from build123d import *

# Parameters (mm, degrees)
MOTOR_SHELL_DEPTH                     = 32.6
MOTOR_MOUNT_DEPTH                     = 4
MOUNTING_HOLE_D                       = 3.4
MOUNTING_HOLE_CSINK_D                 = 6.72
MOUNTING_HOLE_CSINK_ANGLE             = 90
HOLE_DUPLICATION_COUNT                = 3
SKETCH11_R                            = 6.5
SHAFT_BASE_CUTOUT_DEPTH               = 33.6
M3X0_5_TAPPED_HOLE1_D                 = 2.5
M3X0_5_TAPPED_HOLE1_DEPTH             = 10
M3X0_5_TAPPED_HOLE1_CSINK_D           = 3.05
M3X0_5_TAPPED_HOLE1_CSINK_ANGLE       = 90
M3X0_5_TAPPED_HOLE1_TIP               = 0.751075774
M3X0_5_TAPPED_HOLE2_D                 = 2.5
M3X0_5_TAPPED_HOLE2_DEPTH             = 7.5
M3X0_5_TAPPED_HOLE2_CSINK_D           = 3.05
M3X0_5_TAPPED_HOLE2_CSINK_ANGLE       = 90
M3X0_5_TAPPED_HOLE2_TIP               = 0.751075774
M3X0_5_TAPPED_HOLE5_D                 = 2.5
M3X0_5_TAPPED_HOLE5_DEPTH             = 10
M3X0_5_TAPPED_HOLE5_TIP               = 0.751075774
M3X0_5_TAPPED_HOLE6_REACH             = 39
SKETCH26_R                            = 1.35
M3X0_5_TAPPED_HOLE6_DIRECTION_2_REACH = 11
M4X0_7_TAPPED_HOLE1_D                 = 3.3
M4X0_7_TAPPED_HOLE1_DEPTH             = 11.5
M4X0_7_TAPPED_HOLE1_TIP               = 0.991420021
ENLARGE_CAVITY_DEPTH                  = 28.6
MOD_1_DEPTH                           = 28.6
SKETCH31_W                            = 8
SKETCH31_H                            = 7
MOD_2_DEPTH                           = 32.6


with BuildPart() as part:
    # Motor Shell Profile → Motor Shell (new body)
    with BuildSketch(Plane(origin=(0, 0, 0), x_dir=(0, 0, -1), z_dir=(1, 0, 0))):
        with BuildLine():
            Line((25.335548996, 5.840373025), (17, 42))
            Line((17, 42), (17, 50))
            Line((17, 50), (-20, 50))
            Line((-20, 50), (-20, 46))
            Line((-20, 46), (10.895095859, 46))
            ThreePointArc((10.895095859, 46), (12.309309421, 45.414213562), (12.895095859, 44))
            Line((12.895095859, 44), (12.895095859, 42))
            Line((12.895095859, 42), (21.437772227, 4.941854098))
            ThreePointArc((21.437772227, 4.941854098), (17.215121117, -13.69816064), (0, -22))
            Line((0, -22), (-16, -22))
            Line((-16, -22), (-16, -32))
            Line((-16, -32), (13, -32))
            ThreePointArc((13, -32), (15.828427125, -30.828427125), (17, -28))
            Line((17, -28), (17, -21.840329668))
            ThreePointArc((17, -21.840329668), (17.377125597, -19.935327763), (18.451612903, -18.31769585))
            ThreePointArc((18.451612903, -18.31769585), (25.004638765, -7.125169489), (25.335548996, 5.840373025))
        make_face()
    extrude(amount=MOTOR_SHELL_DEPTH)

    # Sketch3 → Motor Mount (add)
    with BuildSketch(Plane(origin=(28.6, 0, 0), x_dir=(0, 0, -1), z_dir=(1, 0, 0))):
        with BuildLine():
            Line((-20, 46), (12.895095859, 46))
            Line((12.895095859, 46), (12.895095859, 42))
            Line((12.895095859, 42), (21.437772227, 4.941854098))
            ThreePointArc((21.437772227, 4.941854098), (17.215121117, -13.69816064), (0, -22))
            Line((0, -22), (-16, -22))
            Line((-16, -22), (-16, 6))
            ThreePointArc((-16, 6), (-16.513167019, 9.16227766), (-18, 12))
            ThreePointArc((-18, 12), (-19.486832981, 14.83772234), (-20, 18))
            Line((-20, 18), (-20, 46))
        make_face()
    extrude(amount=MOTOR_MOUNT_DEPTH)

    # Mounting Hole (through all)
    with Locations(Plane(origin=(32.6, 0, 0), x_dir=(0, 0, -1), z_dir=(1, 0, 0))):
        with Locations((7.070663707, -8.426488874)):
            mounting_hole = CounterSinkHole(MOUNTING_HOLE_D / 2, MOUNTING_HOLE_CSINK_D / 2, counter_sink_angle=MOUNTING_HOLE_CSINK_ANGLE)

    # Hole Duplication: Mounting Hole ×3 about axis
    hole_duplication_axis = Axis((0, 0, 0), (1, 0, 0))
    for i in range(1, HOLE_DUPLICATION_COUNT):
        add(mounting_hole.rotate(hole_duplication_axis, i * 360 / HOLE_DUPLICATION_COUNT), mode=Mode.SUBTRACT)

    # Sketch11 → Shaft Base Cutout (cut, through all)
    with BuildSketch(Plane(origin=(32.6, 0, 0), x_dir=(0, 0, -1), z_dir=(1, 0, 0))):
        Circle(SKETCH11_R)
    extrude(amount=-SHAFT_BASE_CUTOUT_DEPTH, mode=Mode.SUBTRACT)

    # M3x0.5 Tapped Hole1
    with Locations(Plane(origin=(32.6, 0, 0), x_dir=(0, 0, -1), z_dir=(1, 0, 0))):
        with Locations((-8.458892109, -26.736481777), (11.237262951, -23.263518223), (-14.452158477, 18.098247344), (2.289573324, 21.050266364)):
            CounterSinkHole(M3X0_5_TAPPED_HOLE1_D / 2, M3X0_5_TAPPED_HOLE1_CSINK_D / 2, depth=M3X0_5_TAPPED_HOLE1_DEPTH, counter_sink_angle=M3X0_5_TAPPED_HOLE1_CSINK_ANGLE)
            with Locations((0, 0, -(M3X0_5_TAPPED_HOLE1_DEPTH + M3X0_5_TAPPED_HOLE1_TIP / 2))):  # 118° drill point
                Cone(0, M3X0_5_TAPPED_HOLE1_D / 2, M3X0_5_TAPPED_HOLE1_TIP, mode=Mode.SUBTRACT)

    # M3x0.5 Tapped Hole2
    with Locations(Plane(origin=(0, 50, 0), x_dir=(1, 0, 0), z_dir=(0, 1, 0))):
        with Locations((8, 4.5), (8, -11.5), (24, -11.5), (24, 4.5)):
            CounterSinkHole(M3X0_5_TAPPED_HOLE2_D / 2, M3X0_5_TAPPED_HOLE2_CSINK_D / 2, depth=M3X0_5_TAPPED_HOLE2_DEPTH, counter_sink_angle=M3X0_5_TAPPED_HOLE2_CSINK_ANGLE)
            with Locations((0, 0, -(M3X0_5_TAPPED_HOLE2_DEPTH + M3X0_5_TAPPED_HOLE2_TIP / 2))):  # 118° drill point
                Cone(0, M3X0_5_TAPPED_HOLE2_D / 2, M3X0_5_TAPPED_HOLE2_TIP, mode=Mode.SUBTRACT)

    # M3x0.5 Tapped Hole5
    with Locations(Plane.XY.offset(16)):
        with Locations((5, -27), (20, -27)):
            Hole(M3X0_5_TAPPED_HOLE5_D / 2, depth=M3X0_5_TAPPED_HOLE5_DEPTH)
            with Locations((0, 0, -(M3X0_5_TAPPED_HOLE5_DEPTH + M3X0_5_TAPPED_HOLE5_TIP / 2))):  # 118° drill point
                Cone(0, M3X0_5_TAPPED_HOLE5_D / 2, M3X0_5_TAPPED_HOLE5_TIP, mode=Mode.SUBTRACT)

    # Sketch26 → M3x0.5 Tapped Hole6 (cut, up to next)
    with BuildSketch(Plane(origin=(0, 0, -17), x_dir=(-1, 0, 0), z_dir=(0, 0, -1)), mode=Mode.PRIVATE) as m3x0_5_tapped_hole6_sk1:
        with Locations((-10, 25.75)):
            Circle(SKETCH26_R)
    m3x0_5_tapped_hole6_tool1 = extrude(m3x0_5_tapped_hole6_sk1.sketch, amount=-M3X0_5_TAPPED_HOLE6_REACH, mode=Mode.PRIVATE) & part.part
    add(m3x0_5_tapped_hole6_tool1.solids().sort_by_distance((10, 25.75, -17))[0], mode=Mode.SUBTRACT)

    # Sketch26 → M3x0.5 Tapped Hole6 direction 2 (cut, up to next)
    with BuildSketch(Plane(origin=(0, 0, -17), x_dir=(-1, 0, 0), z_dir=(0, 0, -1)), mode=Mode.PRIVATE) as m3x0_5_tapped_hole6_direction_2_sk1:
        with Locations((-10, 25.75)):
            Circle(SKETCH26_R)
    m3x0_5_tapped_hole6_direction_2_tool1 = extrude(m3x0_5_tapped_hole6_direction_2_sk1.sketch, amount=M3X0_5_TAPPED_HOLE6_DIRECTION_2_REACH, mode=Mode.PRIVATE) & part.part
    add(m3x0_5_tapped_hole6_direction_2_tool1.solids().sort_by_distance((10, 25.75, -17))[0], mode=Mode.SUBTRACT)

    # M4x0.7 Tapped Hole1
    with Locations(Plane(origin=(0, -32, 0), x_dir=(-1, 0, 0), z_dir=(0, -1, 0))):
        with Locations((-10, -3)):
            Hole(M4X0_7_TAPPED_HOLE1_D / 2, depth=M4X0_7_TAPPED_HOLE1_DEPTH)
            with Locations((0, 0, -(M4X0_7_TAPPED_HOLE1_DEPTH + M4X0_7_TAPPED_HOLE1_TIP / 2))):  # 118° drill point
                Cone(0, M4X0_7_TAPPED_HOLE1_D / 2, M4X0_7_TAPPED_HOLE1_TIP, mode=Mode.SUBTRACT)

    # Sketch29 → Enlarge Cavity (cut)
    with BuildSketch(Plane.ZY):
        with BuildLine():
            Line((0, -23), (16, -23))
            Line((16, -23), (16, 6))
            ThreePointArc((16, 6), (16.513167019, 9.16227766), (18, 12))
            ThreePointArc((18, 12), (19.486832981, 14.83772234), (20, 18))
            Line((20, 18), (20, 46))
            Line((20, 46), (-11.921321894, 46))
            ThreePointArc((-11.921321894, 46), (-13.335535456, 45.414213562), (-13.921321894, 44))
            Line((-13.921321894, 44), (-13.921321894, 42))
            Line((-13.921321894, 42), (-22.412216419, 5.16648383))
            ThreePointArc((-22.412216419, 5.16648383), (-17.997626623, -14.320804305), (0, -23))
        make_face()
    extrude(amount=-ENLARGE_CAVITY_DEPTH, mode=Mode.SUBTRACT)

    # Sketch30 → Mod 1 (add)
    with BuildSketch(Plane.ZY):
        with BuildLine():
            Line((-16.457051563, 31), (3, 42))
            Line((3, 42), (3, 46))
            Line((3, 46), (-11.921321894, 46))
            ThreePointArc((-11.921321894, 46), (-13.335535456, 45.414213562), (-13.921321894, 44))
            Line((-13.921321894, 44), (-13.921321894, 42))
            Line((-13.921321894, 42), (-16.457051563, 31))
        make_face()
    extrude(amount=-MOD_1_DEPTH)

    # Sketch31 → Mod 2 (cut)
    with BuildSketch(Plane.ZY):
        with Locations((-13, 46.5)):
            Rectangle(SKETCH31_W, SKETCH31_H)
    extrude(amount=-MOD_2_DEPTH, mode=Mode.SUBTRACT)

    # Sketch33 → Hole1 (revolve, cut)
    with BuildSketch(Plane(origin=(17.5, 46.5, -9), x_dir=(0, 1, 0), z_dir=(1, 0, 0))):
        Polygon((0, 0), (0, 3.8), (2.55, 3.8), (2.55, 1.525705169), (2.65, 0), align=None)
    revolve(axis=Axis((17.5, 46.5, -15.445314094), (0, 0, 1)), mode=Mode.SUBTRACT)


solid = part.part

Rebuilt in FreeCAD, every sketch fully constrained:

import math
import FreeCAD as App
import Part
import Sketcher
from FreeCAD import Vector
Q = App.Units.Quantity


def add_polygon(sketch, points):
    """Adds a closed chain of lines whose ends are joined by coincident constraints."""
    first, n = sketch.GeometryCount, len(points)
    for a, b in zip(points, points[1:] + points[:1]):
        sketch.addGeometry(Part.LineSegment(App.Vector(*a, 0), App.Vector(*b, 0)), False)
    for i in range(n):
        sketch.addConstraint(Sketcher.Constraint("Coincident", first + i, 2, first + (i + 1) % n, 1))

doc = App.newDocument("Part")
body = doc.addObject("PartDesign::Body", "Body")

sketch1 = body.newObject("Sketcher::SketchObject", "Sketch")
sketch1.AttachmentSupport = (doc.getObject("YZ_Plane"), [""])
sketch1.MapMode = "FlatFace"
sketch1.addGeometry([
    Part.LineSegment(Vector(5.840373, -25.335549, 0), Vector(42, -17, 0)),
    Part.LineSegment(Vector(42, -17, 0), Vector(50, -17, 0)),
    Part.LineSegment(Vector(50, -17, 0), Vector(50, 20, 0)),
    Part.LineSegment(Vector(50, 20, 0), Vector(46, 20, 0)),
    Part.LineSegment(Vector(46, 20, 0), Vector(46, -10.895096, 0)),
    Part.ArcOfCircle(Part.Circle(Vector(44, -10.895096, 0), Vector(0, 0, 1), 2), math.radians(-90), math.radians(0)),
    Part.LineSegment(Vector(44, -12.895096, 0), Vector(42, -12.895096, 0)),
    Part.LineSegment(Vector(42, -12.895096, 0), Vector(4.941854, -21.437772, 0)),
    Part.ArcOfCircle(Part.Circle(Vector(0, 0, 0), Vector(0, 0, 1), 22), math.radians(180), math.radians(282.981106)),
    Part.LineSegment(Vector(-22, 0, 0), Vector(-22, 16, 0)),
    Part.LineSegment(Vector(-22, 16, 0), Vector(-32, 16, 0)),
    Part.LineSegment(Vector(-32, 16, 0), Vector(-32, -13, 0)),
    Part.ArcOfCircle(Part.Circle(Vector(-28, -13, 0), Vector(0, 0, 1), 4), math.radians(180), math.radians(270)),
    Part.LineSegment(Vector(-28, -17, 0), Vector(-21.84033, -17, 0)),
    Part.ArcOfCircle(Part.Circle(Vector(-21.84033, -22, 0), Vector(0, 0, 1), 5), math.radians(45.208675), math.radians(90)),
    Part.ArcOfCircle(Part.Circle(Vector(0, 0, 0), Vector(0, 0, 1), 26), math.radians(-134.791325), math.radians(-77.018894)),
], False)
sketch1.addConstraint([
    Sketcher.Constraint("Coincident", 0, 2, 1, 1),
    Sketcher.Constraint("Coincident", 1, 2, 2, 1),
    Sketcher.Constraint("Coincident", 2, 2, 3, 1),
    Sketcher.Constraint("Coincident", 3, 2, 4, 1),
    Sketcher.Constraint("Tangent", 4, 2, 5, 2),
    Sketcher.Constraint("Tangent", 5, 1, 6, 1),
    Sketcher.Constraint("Coincident", 6, 2, 7, 1),
    Sketcher.Constraint("Tangent", 7, 2, 8, 2),
    Sketcher.Constraint("Tangent", 8, 1, 9, 1),
    Sketcher.Constraint("Coincident", 9, 2, 10, 1),
    Sketcher.Constraint("Coincident", 10, 2, 11, 1),
    Sketcher.Constraint("Tangent", 11, 2, 12, 1),
    Sketcher.Constraint("Tangent", 12, 2, 13, 1),
    Sketcher.Constraint("Tangent", 13, 2, 14, 2),
    Sketcher.Constraint("Tangent", 14, 1, 15, 1),
    Sketcher.Constraint("Tangent", 15, 2, 0, 1),
    Sketcher.Constraint("Horizontal", 1),
    Sketcher.Constraint("Vertical", 2),
    Sketcher.Constraint("Horizontal", 3),
    Sketcher.Constraint("Vertical", 4),
    Sketcher.Constraint("Horizontal", 6),
    Sketcher.Constraint("Vertical", 9),
    Sketcher.Constraint("Horizontal", 10),
    Sketcher.Constraint("Vertical", 11),
    Sketcher.Constraint("Horizontal", 13),
    Sketcher.Constraint("Coincident", 8, 3, -1, 1),
    Sketcher.Constraint("Coincident", 15, 3, -1, 1),
    Sketcher.Constraint("Parallel", 0, 7),
    Sketcher.Constraint("Horizontal", 1, 2, 12, 2),
    Sketcher.Constraint("Vertical", 0, 2, 6, 2),
    Sketcher.Constraint("Radius", 5, 2.0),
    Sketcher.Constraint("Radius", 8, 22.0),
    Sketcher.Constraint("Radius", 12, 4.0),
    Sketcher.Constraint("Radius", 14, 5.0),
    Sketcher.Constraint("Radius", 15, 26.0),
    Sketcher.Constraint("DistanceX", 1, 1, 1, 2, 8.0),
    Sketcher.Constraint("DistanceX", 3, 2, 3, 1, 4.0),
    Sketcher.Constraint("DistanceX", 10, 2, 10, 1, 10.0),
    Sketcher.Constraint("DistanceY", 2, 1, 2, 2, 37.0),
    Sketcher.Constraint("DistanceY", 9, 1, 9, 2, 16.0),
    Sketcher.Constraint("DistanceY", 11, 2, 11, 1, 29.0),
    Sketcher.Constraint("DistanceX", -1, 1, 5, 3, 44.0),
])
pad1 = body.newObject("PartDesign::Pad", "Pad")
pad1.Profile = sketch1
pad1.Length = 32.6

sketch2 = body.newObject("Sketcher::SketchObject", "Sketch001")
sketch2.AttachmentSupport = (doc.getObject("YZ_Plane"), [""])
sketch2.MapMode = "FlatFace"
sketch2.AttachmentOffset = App.Placement(Vector(0, 0, 28.6), App.Rotation())
sketch2.addGeometry([
    Part.LineSegment(Vector(46, -12.895096, 0), Vector(46, 20, 0)),
    Part.LineSegment(Vector(46, 20, 0), Vector(18, 20, 0)),
    Part.ArcOfCircle(Part.Circle(Vector(18, 10, 0), Vector(0, 0, 1), 10), math.radians(90), math.radians(126.869898)),
    Part.ArcOfCircle(Part.Circle(Vector(6, 26, 0), Vector(0, 0, 1), 10), math.radians(-90), math.radians(-53.130102)),
    Part.LineSegment(Vector(6, 16, 0), Vector(-22, 16, 0)),
    Part.LineSegment(Vector(-22, 16, 0), Vector(-22, 0, 0)),
    Part.ArcOfCircle(Part.Circle(Vector(0, 0, 0), Vector(0, 0, 1), 22), math.radians(180), math.radians(282.981106)),
    Part.LineSegment(Vector(4.941854, -21.437772, 0), Vector(42, -12.895096, 0)),
    Part.LineSegment(Vector(42, -12.895096, 0), Vector(46, -12.895096, 0)),
], False)
sketch2.addConstraint([
    Sketcher.Constraint("Coincident", 0, 2, 1, 1),
    Sketcher.Constraint("Tangent", 1, 2, 2, 1),
    Sketcher.Constraint("Tangent", 2, 2, 3, 2),
    Sketcher.Constraint("Tangent", 3, 1, 4, 1),
    Sketcher.Constraint("Coincident", 4, 2, 5, 1),
    Sketcher.Constraint("Tangent", 5, 2, 6, 1),
    Sketcher.Constraint("Tangent", 6, 2, 7, 1),
    Sketcher.Constraint("Coincident", 7, 2, 8, 1),
    Sketcher.Constraint("Coincident", 8, 2, 0, 1),
    Sketcher.Constraint("Vertical", 0),
    Sketcher.Constraint("Horizontal", 1),
    Sketcher.Constraint("Horizontal", 4),
    Sketcher.Constraint("Vertical", 5),
    Sketcher.Constraint("Horizontal", 8),
    Sketcher.Constraint("Coincident", 6, 3, -1, 1),
    Sketcher.Constraint("Equal", 2, 3),
    Sketcher.Constraint("Equal", 1, 4),
    Sketcher.Constraint("Radius", 2, 10.0),
    Sketcher.Constraint("Radius", 6, 22.0),
    Sketcher.Constraint("DistanceX", 1, 2, 1, 1, 28.0),
    Sketcher.Constraint("DistanceX", 8, 1, 8, 2, 4.0),
    Sketcher.Constraint("DistanceY", 5, 2, 5, 1, 16.0),
    Sketcher.Constraint("DistanceX", -1, 1, 2, 3, 18.0),
    Sketcher.Constraint("DistanceY", 0, 1, 0, 2, 32.895096),
])
pad2 = body.newObject("PartDesign::Pad", "Pad001")
pad2.Profile = sketch2
pad2.Length = 4

sketch3 = body.newObject("Sketcher::SketchObject", "Sketch002")
sketch3.AttachmentSupport = (doc.getObject("YZ_Plane"), [""])
sketch3.MapMode = "FlatFace"
sketch3.AttachmentOffset = App.Placement(Vector(0, 0, 32.6), App.Rotation())
sketch3.addGeometry(Part.Circle(Vector(-8.426489, -7.070664, 0), Vector(0, 0, 1), 1.7), False)
sketch3.addConstraint([
    Sketcher.Constraint("Diameter", 0, 3.4),
    Sketcher.Constraint("DistanceX", 0, 3, -1, 1, 8.426489),
    Sketcher.Constraint("DistanceY", 0, 3, -1, 1, 7.070664),
])
doc.recompute()
hole = body.newObject("PartDesign::Hole", "Hole")
hole.Profile = sketch3
hole.ThreadType = "None"
hole.Diameter = 3.4
hole.DepthType = "ThroughAll"
hole.HoleCutType = "Countersink"
hole.HoleCutDiameter = 6.72
hole.HoleCutCountersinkAngle = 90
doc.recompute()

polarpattern = body.newObject("PartDesign::PolarPattern", "PolarPattern")
polarpattern.Originals = [hole]
polarpattern.Axis = (doc.getObject("X_Axis"), [""])
polarpattern.Angle = 360
polarpattern.Occurrences = 3
body.Tip = polarpattern

sketch4 = body.newObject("Sketcher::SketchObject", "Sketch003")
sketch4.AttachmentSupport = (doc.getObject("YZ_Plane"), [""])
sketch4.MapMode = "FlatFace"
sketch4.AttachmentOffset = App.Placement(Vector(0, 0, 32.6), App.Rotation())
sketch4.addGeometry(Part.Circle(Vector(0, 0, 0), Vector(0, 0, 1), 6.5), False)
sketch4.addConstraint([
    Sketcher.Constraint("Coincident", 0, 3, -1, 1),
    Sketcher.Constraint("Diameter", 0, 13.0),
])
pocket1 = body.newObject("PartDesign::Pocket", "Pocket")
pocket1.Profile = sketch4
pocket1.Type = "ThroughAll"

sketch5 = body.newObject("Sketcher::SketchObject", "Sketch004")
sketch5.AttachmentSupport = (doc.getObject("YZ_Plane"), [""])
sketch5.MapMode = "FlatFace"
sketch5.AttachmentOffset = App.Placement(Vector(0, 0, 32.6), App.Rotation())
sketch5.addGeometry([
    Part.Circle(Vector(-26.736482, 8.458892, 0), Vector(0, 0, 1), 1.25),
    Part.Circle(Vector(-23.263518, -11.237263, 0), Vector(0, 0, 1), 1.25),
    Part.Circle(Vector(18.098247, 14.452158, 0), Vector(0, 0, 1), 1.25),
    Part.Circle(Vector(21.050266, -2.289573, 0), Vector(0, 0, 1), 1.25),
], False)
sketch5.addConstraint([
    Sketcher.Constraint("Equal", 0, 1),
    Sketcher.Constraint("Equal", 1, 2),
    Sketcher.Constraint("Equal", 2, 3),
    Sketcher.Constraint("Diameter", 0, 2.5),
    Sketcher.Constraint("DistanceX", 0, 3, -1, 1, 26.736482),
    Sketcher.Constraint("DistanceX", 1, 3, -1, 1, 23.263518),
    Sketcher.Constraint("DistanceY", -1, 1, 2, 3, 14.452158),
    Sketcher.Constraint("DistanceX", 0, 3, 2, 3, 44.834729),
    Sketcher.Constraint("DistanceY", 1, 3, 2, 3, 25.689421),
    Sketcher.Constraint("DistanceX", 2, 3, 3, 3, 2.952019),
    Sketcher.Constraint("DistanceY", 3, 3, 2, 3, 16.741732),
    Sketcher.Constraint("DistanceY", -1, 1, 0, 3, 8.458892),
])
doc.recompute()
hole2 = body.newObject("PartDesign::Hole", "Hole001")
hole2.Profile = sketch5
hole2.ThreadType = "None"
hole2.Diameter = 2.5
hole2.DepthType = "Dimension"
hole2.Depth = 10
hole2.DrillPoint = "Angled"
hole2.DrillPointAngle = 118
hole2.HoleCutType = "Countersink"
hole2.HoleCutDiameter = 3.05
hole2.HoleCutCountersinkAngle = 90

sketch6 = body.newObject("Sketcher::SketchObject", "Sketch005")
sketch6.AttachmentSupport = (doc.getObject("XZ_Plane"), [""])
sketch6.MapMode = "FlatFace"
sketch6.AttachmentOffset = App.Placement(Vector(0, 0, -50), App.Rotation())
sketch6.addGeometry([
    Part.Circle(Vector(8, -4.5, 0), Vector(0, 0, 1), 1.25),
    Part.Circle(Vector(8, 11.5, 0), Vector(0, 0, 1), 1.25),
    Part.Circle(Vector(24, 11.5, 0), Vector(0, 0, 1), 1.25),
    Part.Circle(Vector(24, -4.5, 0), Vector(0, 0, 1), 1.25),
], False)
sketch6.addConstraint([
    Sketcher.Constraint("Equal", 0, 1),
    Sketcher.Constraint("Equal", 1, 2),
    Sketcher.Constraint("Equal", 2, 3),
    Sketcher.Constraint("Horizontal", 1, 3, 2, 3),
    Sketcher.Constraint("Horizontal", 0, 3, 3, 3),
    Sketcher.Constraint("Vertical", 0, 3, 1, 3),
    Sketcher.Constraint("Vertical", 2, 3, 3, 3),
    Sketcher.Constraint("Diameter", 0, 2.5),
    Sketcher.Constraint("DistanceX", -1, 1, 0, 3, 8.0),
    Sketcher.Constraint("DistanceX", -1, 1, 2, 3, 24.0),
    Sketcher.Constraint("DistanceY", 0, 3, 1, 3, 16.0),
    Sketcher.Constraint("DistanceY", 0, 3, -1, 1, 4.5),
])
doc.recompute()
hole3 = body.newObject("PartDesign::Hole", "Hole002")
hole3.Profile = sketch6
hole3.ThreadType = "None"
hole3.Diameter = 2.5
hole3.DepthType = "Dimension"
hole3.Depth = 7.5
hole3.DrillPoint = "Angled"
hole3.DrillPointAngle = 118
hole3.HoleCutType = "Countersink"
hole3.HoleCutDiameter = 3.05
hole3.HoleCutCountersinkAngle = 90
hole3.Reversed = True

sketch7 = body.newObject("Sketcher::SketchObject", "Sketch006")
sketch7.AttachmentSupport = (doc.getObject("XY_Plane"), [""])
sketch7.MapMode = "FlatFace"
sketch7.AttachmentOffset = App.Placement(Vector(0, 0, 16), App.Rotation())
sketch7.addGeometry([
    Part.Circle(Vector(5, -27, 0), Vector(0, 0, 1), 1.25),
    Part.Circle(Vector(20, -27, 0), Vector(0, 0, 1), 1.25),
], False)
sketch7.addConstraint([
    Sketcher.Constraint("Equal", 0, 1),
    Sketcher.Constraint("Horizontal", 0, 3, 1, 3),
    Sketcher.Constraint("Diameter", 0, 2.5),
    Sketcher.Constraint("DistanceX", -1, 1, 0, 3, 5.0),
    Sketcher.Constraint("DistanceY", 0, 3, -1, 1, 27.0),
    Sketcher.Constraint("DistanceX", -1, 1, 1, 3, 20.0),
])
doc.recompute()
hole4 = body.newObject("PartDesign::Hole", "Hole003")
hole4.Profile = sketch7
hole4.ThreadType = "None"
hole4.Diameter = 2.5
hole4.DepthType = "Dimension"
hole4.Depth = 10
hole4.DrillPoint = "Angled"
hole4.DrillPointAngle = 118

sketch8 = body.newObject("Sketcher::SketchObject", "Sketch007")
sketch8.AttachmentSupport = (doc.getObject("XY_Plane"), [""])
sketch8.MapMode = "FlatFace"
sketch8.AttachmentOffset = App.Placement(Vector(0, 0, -17), App.Rotation())
sketch8.addGeometry(Part.Circle(Vector(10, 25.75, 0), Vector(0, 0, 1), 1.35), False)
sketch8.addConstraint([
    Sketcher.Constraint("Diameter", 0, 2.7),
    Sketcher.Constraint("DistanceX", -1, 1, 0, 3, 10.0),
    Sketcher.Constraint("DistanceY", -1, 1, 0, 3, 25.75),
])
pocket2 = body.newObject("PartDesign::Pocket", "Pocket001")
pocket2.Profile = sketch8
pocket2.Type = "UpToFirst"
pocket2.Reversed = True

sketch9 = body.newObject("Sketcher::SketchObject", "Sketch008")
sketch9.AttachmentSupport = (doc.getObject("XY_Plane"), [""])
sketch9.MapMode = "FlatFace"
sketch9.AttachmentOffset = App.Placement(Vector(0, 0, -17), App.Rotation())
sketch9.addGeometry(Part.Circle(Vector(10, 25.75, 0), Vector(0, 0, 1), 1.35), False)
sketch9.addConstraint([
    Sketcher.Constraint("Diameter", 0, 2.7),
    Sketcher.Constraint("DistanceX", -1, 1, 0, 3, 10.0),
    Sketcher.Constraint("DistanceY", -1, 1, 0, 3, 25.75),
])
pocket3 = body.newObject("PartDesign::Pocket", "Pocket002")
pocket3.Profile = sketch9
pocket3.Type = "UpToFirst"

sketch10 = body.newObject("Sketcher::SketchObject", "Sketch009")
sketch10.AttachmentSupport = (doc.getObject("XZ_Plane"), [""])
sketch10.MapMode = "FlatFace"
sketch10.AttachmentOffset = App.Placement(Vector(0, 0, 32), App.Rotation())
sketch10.addGeometry(Part.Circle(Vector(10, 3, 0), Vector(0, 0, 1), 1.65), False)
sketch10.addConstraint([
    Sketcher.Constraint("Diameter", 0, 3.3),
    Sketcher.Constraint("DistanceX", -1, 1, 0, 3, 10.0),
    Sketcher.Constraint("DistanceY", -1, 1, 0, 3, 3.0),
])
doc.recompute()
hole5 = body.newObject("PartDesign::Hole", "Hole004")
hole5.Profile = sketch10
hole5.ThreadType = "None"
hole5.Diameter = 3.3
hole5.DepthType = "Dimension"
hole5.Depth = 11.5
hole5.DrillPoint = "Angled"
hole5.DrillPointAngle = 118

sketch11 = body.newObject("Sketcher::SketchObject", "Sketch010")
sketch11.AttachmentSupport = (doc.getObject("YZ_Plane"), [""])
sketch11.MapMode = "FlatFace"
sketch11.addGeometry([
    Part.LineSegment(Vector(-23, 0, 0), Vector(-23, 16, 0)),
    Part.LineSegment(Vector(-23, 16, 0), Vector(6, 16, 0)),
    Part.ArcOfCircle(Part.Circle(Vector(6, 26, 0), Vector(0, 0, 1), 10), math.radians(-90), math.radians(-53.130102)),
    Part.ArcOfCircle(Part.Circle(Vector(18, 10, 0), Vector(0, 0, 1), 10), math.radians(90), math.radians(126.869898)),
    Part.LineSegment(Vector(18, 20, 0), Vector(46, 20, 0)),
    Part.LineSegment(Vector(46, 20, 0), Vector(46, -11.921322, 0)),
    Part.ArcOfCircle(Part.Circle(Vector(44, -11.921322, 0), Vector(0, 0, 1), 2), math.radians(-90), math.radians(0)),
    Part.LineSegment(Vector(44, -13.921322, 0), Vector(42, -13.921322, 0)),
    Part.LineSegment(Vector(42, -13.921322, 0), Vector(5.166484, -22.412216, 0)),
    Part.ArcOfCircle(Part.Circle(Vector(0, 0, 0), Vector(0, 0, 1), 23), math.radians(180), math.radians(282.981106)),
], False)
sketch11.addConstraint([
    Sketcher.Constraint("Coincident", 0, 2, 1, 1),
    Sketcher.Constraint("Tangent", 1, 2, 2, 1),
    Sketcher.Constraint("Tangent", 2, 2, 3, 2),
    Sketcher.Constraint("Tangent", 3, 1, 4, 1),
    Sketcher.Constraint("Coincident", 4, 2, 5, 1),
    Sketcher.Constraint("Tangent", 5, 2, 6, 2),
    Sketcher.Constraint("Tangent", 6, 1, 7, 1),
    Sketcher.Constraint("Coincident", 7, 2, 8, 1),
    Sketcher.Constraint("Tangent", 8, 2, 9, 2),
    Sketcher.Constraint("Tangent", 9, 1, 0, 1),
    Sketcher.Constraint("Vertical", 0),
    Sketcher.Constraint("Horizontal", 1),
    Sketcher.Constraint("Horizontal", 4),
    Sketcher.Constraint("Vertical", 5),
    Sketcher.Constraint("Horizontal", 7),
    Sketcher.Constraint("Coincident", 9, 3, -1, 1),
    Sketcher.Constraint("Equal", 2, 3),
    Sketcher.Constraint("Radius", 2, 10.0),
    Sketcher.Constraint("Radius", 6, 2.0),
    Sketcher.Constraint("Radius", 9, 23.0),
    Sketcher.Constraint("DistanceX", 1, 1, 1, 2, 29.0),
    Sketcher.Constraint("DistanceX", 4, 1, 4, 2, 28.0),
    Sketcher.Constraint("DistanceX", 7, 2, 7, 1, 2.0),
    Sketcher.Constraint("DistanceY", 0, 1, 0, 2, 16.0),
    Sketcher.Constraint("DistanceX", -1, 1, 3, 3, 18.0),
    Sketcher.Constraint("DistanceY", 5, 2, 5, 1, 31.921322),
])
pocket4 = body.newObject("PartDesign::Pocket", "Pocket003")
pocket4.Profile = sketch11
pocket4.Length = 28.6
pocket4.Reversed = True

sketch12 = body.newObject("Sketcher::SketchObject", "Sketch011")
sketch12.AttachmentSupport = (doc.getObject("YZ_Plane"), [""])
sketch12.MapMode = "FlatFace"
sketch12.addGeometry([
    Part.LineSegment(Vector(31, -16.457052, 0), Vector(42, 3, 0)),
    Part.LineSegment(Vector(42, 3, 0), Vector(46, 3, 0)),
    Part.LineSegment(Vector(46, 3, 0), Vector(46, -11.921322, 0)),
    Part.ArcOfCircle(Part.Circle(Vector(44, -11.921322, 0), Vector(0, 0, 1), 2), math.radians(-90), math.radians(0)),
    Part.LineSegment(Vector(44, -13.921322, 0), Vector(42, -13.921322, 0)),
    Part.LineSegment(Vector(42, -13.921322, 0), Vector(31, -16.457052, 0)),
], False)
sketch12.addConstraint([
    Sketcher.Constraint("Coincident", 0, 2, 1, 1),
    Sketcher.Constraint("Coincident", 1, 2, 2, 1),
    Sketcher.Constraint("Tangent", 2, 2, 3, 2),
    Sketcher.Constraint("Tangent", 3, 1, 4, 1),
    Sketcher.Constraint("Coincident", 4, 2, 5, 1),
    Sketcher.Constraint("Coincident", 5, 2, 0, 1),
    Sketcher.Constraint("Horizontal", 1),
    Sketcher.Constraint("Vertical", 2),
    Sketcher.Constraint("Horizontal", 4),
    Sketcher.Constraint("Vertical", 0, 2, 4, 2),
    Sketcher.Constraint("Radius", 3, 2.0),
    Sketcher.Constraint("DistanceX", 1, 1, 1, 2, 4.0),
    Sketcher.Constraint("DistanceX", -1, 1, 3, 3, 44.0),
    Sketcher.Constraint("DistanceY", -1, 1, 0, 2, 3.0),
    Sketcher.Constraint("DistanceX", -1, 1, 5, 2, 31.0),
    Sketcher.Constraint("DistanceY", 2, 2, 2, 1, 14.921322),
    Sketcher.Constraint("DistanceY", 5, 2, -1, 1, 16.457052),
])
pad3 = body.newObject("PartDesign::Pad", "Pad002")
pad3.Profile = sketch12
pad3.Length = 28.6

sketch13 = body.newObject("Sketcher::SketchObject", "Sketch012")
sketch13.AttachmentSupport = (doc.getObject("YZ_Plane"), [""])
sketch13.MapMode = "FlatFace"
add_polygon(sketch13, [(50, -17), (43, -17), (43, -9), (50, -9)])
sketch13.addConstraint([
    Sketcher.Constraint("Horizontal", 0),
    Sketcher.Constraint("Vertical", 1),
    Sketcher.Constraint("Horizontal", 2),
    Sketcher.Constraint("Vertical", 3),
    Sketcher.Constraint("DistanceX", 0, 2, 0, 1, 7.0),
    Sketcher.Constraint("DistanceY", 1, 1, 1, 2, 8.0),
    Sketcher.Constraint("DistanceX", -1, 1, 0, 2, 43.0),
    Sketcher.Constraint("DistanceY", 0, 2, -1, 1, 17.0),
])
pocket5 = body.newObject("PartDesign::Pocket", "Pocket004")
pocket5.Profile = sketch13
pocket5.Length = 32.6
pocket5.Reversed = True

sketch14 = body.newObject("Sketcher::SketchObject", "Sketch013")
sketch14.AttachmentSupport = (doc.getObject("YZ_Plane"), [""])
sketch14.MapMode = "FlatFace"
sketch14.AttachmentOffset = App.Placement(Vector(0, 0, 17.5), App.Rotation())
add_polygon(sketch14, [(46.5, -5.2), (46.5, -9), (49.15, -9), (49.05, -7.474295), (49.05, -5.2)])
sketch14.addGeometry(Part.LineSegment(Vector(46.5, -9, 0), Vector(46.5, -5.2, 0)), True)
sketch14.addConstraint([
    Sketcher.Constraint("Vertical", 0),
    Sketcher.Constraint("Horizontal", 1),
    Sketcher.Constraint("Vertical", 3),
    Sketcher.Constraint("Horizontal", 4),
    Sketcher.Constraint("Vertical", 5),
    Sketcher.Constraint("Coincident", 5, 1, 0, 2),
    Sketcher.Constraint("Horizontal", 3, 2, 5, 2),
    Sketcher.Constraint("DistanceY", 0, 2, 0, 1, 3.8),
    Sketcher.Constraint("DistanceY", 0, 2, -1, 1, 9.0),
    Sketcher.Constraint("DistanceX", 1, 1, 1, 2, 2.65),
    Sketcher.Constraint("DistanceX", 4, 2, 4, 1, 2.55),
    Sketcher.Constraint("DistanceX", -1, 1, 0, 2, 46.5),
    Sketcher.Constraint("Angle", 2, Q("93.75 deg")),
])
groove = body.newObject("PartDesign::Groove", "Groove")
groove.Profile = sketch14
groove.ReferenceAxis = (sketch14, ["Axis0"])
groove.Angle = 360

doc.recompute()
